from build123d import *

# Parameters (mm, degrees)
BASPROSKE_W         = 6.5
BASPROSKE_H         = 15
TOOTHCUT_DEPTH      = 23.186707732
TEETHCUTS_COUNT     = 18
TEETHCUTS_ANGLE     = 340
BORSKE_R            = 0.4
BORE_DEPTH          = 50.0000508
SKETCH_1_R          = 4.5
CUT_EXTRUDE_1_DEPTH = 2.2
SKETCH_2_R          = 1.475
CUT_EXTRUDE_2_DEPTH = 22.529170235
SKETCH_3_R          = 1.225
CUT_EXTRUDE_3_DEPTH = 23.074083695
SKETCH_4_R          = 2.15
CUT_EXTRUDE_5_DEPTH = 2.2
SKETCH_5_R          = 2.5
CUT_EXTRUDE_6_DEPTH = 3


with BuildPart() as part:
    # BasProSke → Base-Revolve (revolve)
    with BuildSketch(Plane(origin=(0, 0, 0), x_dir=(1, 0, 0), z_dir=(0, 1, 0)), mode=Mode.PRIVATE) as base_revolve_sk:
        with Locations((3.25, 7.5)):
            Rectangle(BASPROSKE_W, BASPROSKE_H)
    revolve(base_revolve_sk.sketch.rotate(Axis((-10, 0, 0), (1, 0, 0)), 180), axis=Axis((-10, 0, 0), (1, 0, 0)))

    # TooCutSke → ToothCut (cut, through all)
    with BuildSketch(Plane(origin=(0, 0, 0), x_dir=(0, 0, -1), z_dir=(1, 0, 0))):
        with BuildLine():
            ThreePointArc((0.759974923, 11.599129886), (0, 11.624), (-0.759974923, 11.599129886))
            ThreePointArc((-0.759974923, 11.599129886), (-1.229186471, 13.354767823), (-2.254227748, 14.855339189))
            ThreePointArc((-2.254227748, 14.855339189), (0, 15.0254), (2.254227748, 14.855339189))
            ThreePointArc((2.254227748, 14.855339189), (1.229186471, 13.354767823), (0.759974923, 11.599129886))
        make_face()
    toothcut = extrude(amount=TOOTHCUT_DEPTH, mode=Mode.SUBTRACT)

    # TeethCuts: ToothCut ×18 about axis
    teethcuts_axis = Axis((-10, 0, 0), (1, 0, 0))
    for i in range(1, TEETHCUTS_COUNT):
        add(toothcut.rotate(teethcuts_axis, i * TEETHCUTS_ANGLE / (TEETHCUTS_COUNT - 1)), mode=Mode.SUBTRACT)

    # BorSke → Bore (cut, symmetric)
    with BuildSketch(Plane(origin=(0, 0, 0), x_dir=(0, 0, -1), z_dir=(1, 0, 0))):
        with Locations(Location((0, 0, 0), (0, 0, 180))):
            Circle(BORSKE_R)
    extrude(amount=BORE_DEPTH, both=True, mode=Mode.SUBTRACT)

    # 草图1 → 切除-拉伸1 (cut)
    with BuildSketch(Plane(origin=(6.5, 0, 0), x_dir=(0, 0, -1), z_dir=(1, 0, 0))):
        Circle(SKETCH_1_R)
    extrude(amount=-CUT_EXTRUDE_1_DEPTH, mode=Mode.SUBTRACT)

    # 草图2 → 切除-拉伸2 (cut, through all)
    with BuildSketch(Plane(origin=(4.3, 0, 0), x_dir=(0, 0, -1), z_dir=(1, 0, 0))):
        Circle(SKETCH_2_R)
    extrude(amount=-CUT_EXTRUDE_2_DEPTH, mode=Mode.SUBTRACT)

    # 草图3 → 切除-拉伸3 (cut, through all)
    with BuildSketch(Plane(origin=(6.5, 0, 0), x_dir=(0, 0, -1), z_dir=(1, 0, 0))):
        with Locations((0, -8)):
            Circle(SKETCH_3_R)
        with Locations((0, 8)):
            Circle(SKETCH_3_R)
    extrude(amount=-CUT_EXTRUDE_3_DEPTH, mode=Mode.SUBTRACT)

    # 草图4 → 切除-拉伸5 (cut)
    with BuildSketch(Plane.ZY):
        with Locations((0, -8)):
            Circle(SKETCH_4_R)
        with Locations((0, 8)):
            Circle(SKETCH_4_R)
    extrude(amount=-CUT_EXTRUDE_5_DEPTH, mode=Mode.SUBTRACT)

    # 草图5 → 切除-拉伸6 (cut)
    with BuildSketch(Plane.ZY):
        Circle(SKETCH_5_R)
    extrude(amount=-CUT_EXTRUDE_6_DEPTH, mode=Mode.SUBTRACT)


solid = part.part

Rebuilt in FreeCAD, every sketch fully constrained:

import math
import FreeCAD as App
import Part
import Sketcher
from FreeCAD import Vector
Q = App.Units.Quantity

doc = App.newDocument("Part")
params = doc.addObject("Spreadsheet::Sheet", "Params")
for row, (alias, value) in enumerate([
    ("sketch1_height", "15 mm"),
    ("sketch1_width", "6.5 mm"),
    ("revolution_angle", "360 deg"),
    ("sketch2_radius", "5.4 mm"),
    ("sketch3_diameter", "0.8 mm"),
    ("pocket2_length", "100.000102 mm"),
    ("sketch4_diameter", "9 mm"),
    ("pocket3_length", "2.2 mm"),
    ("sketch5_diameter", "2.95 mm"),
    ("sketch6_diameter", "2.45 mm"),
    ("sketch7_diameter", "4.3 mm"),
    ("pocket6_length", "2.2 mm"),
    ("sketch8_diameter", "5 mm"),
    ("pocket7_length", "3 mm"),
], start=1):
    params.set(f"A{row}", alias)
    params.set(f"B{row}", "=" + value)
    params.setAlias(f"B{row}", alias)

body = doc.addObject("PartDesign::Body", "Body")

sketch1 = doc.addObject("Sketcher::SketchObject", "Sketch")
body.addObject(sketch1)
sketch1.AttachmentSupport = (doc.XZ_Plane, [""])
sketch1.MapMode = "FlatFace"
sketch1.addGeometry([
    Part.LineSegment(Vector(0, -15, 0), Vector(0, 0, 0)),
    Part.LineSegment(Vector(0, 0, 0), Vector(6.5, 0, 0)),
    Part.LineSegment(Vector(6.5, 0, 0), Vector(6.5, -15, 0)),
    Part.LineSegment(Vector(6.5, -15, 0), Vector(0, -15, 0)),
], False)
sketch1.addConstraint([
    Sketcher.Constraint("Coincident", 0, 2, 1, 1),
    Sketcher.Constraint("Coincident", 1, 2, 2, 1),
    Sketcher.Constraint("Coincident", 2, 2, 3, 1),
    Sketcher.Constraint("Coincident", 3, 2, 0, 1),
    Sketcher.Constraint("Vertical", 0),
    Sketcher.Constraint("Horizontal", 1),
    Sketcher.Constraint("Vertical", 2),
    Sketcher.Constraint("Horizontal", 3),
    Sketcher.Constraint("Coincident", 0, 2, -1, 1),
    Sketcher.Constraint("DistanceY", 0, 1, 0, 2, Q("15 mm")),
    Sketcher.Constraint("DistanceX", 1, 1, 1, 2, Q("6.5 mm")),
])
sketch1.setExpression("Constraints[9]", "Params.sketch1_height")
sketch1.setExpression("Constraints[10]", "Params.sketch1_width")
revolution = doc.addObject("PartDesign::Revolution", "Revolution")
body.addObject(revolution)
revolution.Profile = sketch1
revolution.ReferenceAxis = (sketch1, ["H_Axis"])
revolution.setExpression("Angle", "Params.revolution_angle")

sketch2 = doc.addObject("Sketcher::SketchObject", "Sketch001")
body.addObject(sketch2)
sketch2.AttachmentSupport = (doc.YZ_Plane, [""])
sketch2.MapMode = "FlatFace"
sketch2.addGeometry([
    Part.ArcOfCircle(Part.Circle(Vector(0, 0, 0), Vector(0, 0, 1), 11.624), math.radians(-3.748661), math.radians(3.748661)),
    Part.ArcOfCircle(Part.Circle(Vector(11.102561, -6.137095, 0), Vector(0, 0, 1), 5.4), math.radians(45.976059), math.radians(84.723789)),
    Part.ArcOfCircle(Part.Circle(Vector(0, 0, 0), Vector(0, 0, 1), 15.0254), math.radians(-8.628538), math.radians(8.628538)),
    Part.ArcOfCircle(Part.Circle(Vector(11.102561, 6.137095, 0), Vector(0, 0, 1), 5.4), math.radians(-84.723789), math.radians(-45.976059)),
], False)
sketch2.addConstraint([
    Sketcher.Constraint("Coincident", 0, 1, 1, 2),
    Sketcher.Constraint("Coincident", 1, 1, 2, 1),
    Sketcher.Constraint("Coincident", 2, 2, 3, 2),
    Sketcher.Constraint("Coincident", 3, 1, 0, 2),
    Sketcher.Constraint("Coincident", 0, 3, -1, 1),
    Sketcher.Constraint("Coincident", 2, 3, -1, 1),
    Sketcher.Constraint("Equal", 1, 3),
    Sketcher.Constraint("Symmetric", 1, 3, 3, 3, -1),
    Sketcher.Constraint("Radius", 1, Q("5.4 mm")),
    Sketcher.Constraint("Radius", 0, Q("11.624 mm")),
    Sketcher.Constraint("Radius", 2, Q("15.0254 mm")),
    Sketcher.Constraint("DistanceX", -1, 1, 1, 3, Q("11.102561 mm")),
    Sketcher.Constraint("DistanceX", -1, 1, 0, 1, Q("11.59913 mm")),
])
sketch2.setExpression("Constraints[8]", "Params.sketch2_radius")
pocket1 = doc.addObject("PartDesign::Pocket", "Pocket")
body.addObject(pocket1)
pocket1.Profile = sketch2
pocket1.Type = "ThroughAll"
pocket1.Reversed = True
doc.recompute()

polarpattern = doc.addObject("PartDesign::PolarPattern", "PolarPattern")
body.addObject(polarpattern)
polarpattern.Originals = [pocket1]
polarpattern.Axis = (doc.X_Axis, [""])
polarpattern.Angle = 360
polarpattern.Occurrences = 18
body.Tip = polarpattern

sketch3 = doc.addObject("Sketcher::SketchObject", "Sketch002")
body.addObject(sketch3)
sketch3.AttachmentSupport = (doc.YZ_Plane, [""])
sketch3.MapMode = "FlatFace"
sketch3.addGeometry(Part.Circle(Vector(0, 0, 0), Vector(0, 0, 1), 0.4), False)
sketch3.addConstraint([
    Sketcher.Constraint("Coincident", 0, 3, -1, 1),
    Sketcher.Constraint("Diameter", 0, Q("0.8 mm")),
])
sketch3.setExpression("Constraints[1]", "Params.sketch3_diameter")
pocket2 = doc.addObject("PartDesign::Pocket", "Pocket001")
body.addObject(pocket2)
pocket2.Profile = sketch3
pocket2.setExpression("Length", "Params.pocket2_length")
pocket2.Midplane = True

sketch4 = doc.addObject("Sketcher::SketchObject", "Sketch003")
body.addObject(sketch4)
sketch4.AttachmentSupport = (doc.YZ_Plane, [""])
sketch4.MapMode = "FlatFace"
sketch4.AttachmentOffset = App.Placement(Vector(0, 0, 6.5), App.Rotation())
sketch4.addGeometry(Part.Circle(Vector(0, 0, 0), Vector(0, 0, 1), 4.5), False)
sketch4.addConstraint([
    Sketcher.Constraint("Coincident", 0, 3, -1, 1),
    Sketcher.Constraint("Diameter", 0, Q("9 mm")),
])
sketch4.setExpression("Constraints[1]", "Params.sketch4_diameter")
pocket3 = doc.addObject("PartDesign::Pocket", "Pocket002")
body.addObject(pocket3)
pocket3.Profile = sketch4
pocket3.setExpression("Length", "Params.pocket3_length")

sketch5 = doc.addObject("Sketcher::SketchObject", "Sketch004")
body.addObject(sketch5)
sketch5.AttachmentSupport = (doc.YZ_Plane, [""])
sketch5.MapMode = "FlatFace"
sketch5.AttachmentOffset = App.Placement(Vector(0, 0, 4.3), App.Rotation())
sketch5.addGeometry(Part.Circle(Vector(0, 0, 0), Vector(0, 0, 1), 1.475), False)
sketch5.addConstraint([
    Sketcher.Constraint("Coincident", 0, 3, -1, 1),
    Sketcher.Constraint("Diameter", 0, Q("2.95 mm")),
])
sketch5.setExpression("Constraints[1]", "Params.sketch5_diameter")
pocket4 = doc.addObject("PartDesign::Pocket", "Pocket003")
body.addObject(pocket4)
pocket4.Profile = sketch5
pocket4.Type = "ThroughAll"

sketch6 = doc.addObject("Sketcher::SketchObject", "Sketch005")
body.addObject(sketch6)
sketch6.AttachmentSupport = (doc.YZ_Plane, [""])
sketch6.MapMode = "FlatFace"
sketch6.AttachmentOffset = App.Placement(Vector(0, 0, 6.5), App.Rotation())
sketch6.addGeometry([
    Part.Circle(Vector(-8, 0, 0), Vector(0, 0, 1), 1.225),
    Part.Circle(Vector(8, 0, 0), Vector(0, 0, 1), 1.225),
], False)
sketch6.addConstraint([
    Sketcher.Constraint("Equal", 0, 1),
    Sketcher.Constraint("Symmetric", 0, 3, 1, 3, -1, 1),
    Sketcher.Constraint("PointOnObject", 0, 3, -1),
    Sketcher.Constraint("Diameter", 0, Q("2.45 mm")),
    Sketcher.Constraint("DistanceX", 0, 3, -1, 1, Q("8 mm")),
])
sketch6.setExpression("Constraints[3]", "Params.sketch6_diameter")
pocket5 = doc.addObject("PartDesign::Pocket", "Pocket004")
body.addObject(pocket5)
pocket5.Profile = sketch6
pocket5.Type = "ThroughAll"

sketch7 = doc.addObject("Sketcher::SketchObject", "Sketch006")
body.addObject(sketch7)
sketch7.AttachmentSupport = (doc.YZ_Plane, [""])
sketch7.MapMode = "FlatFace"
sketch7.addGeometry([
    Part.Circle(Vector(-8, 0, 0), Vector(0, 0, 1), 2.15),
    Part.Circle(Vector(8, 0, 0), Vector(0, 0, 1), 2.15),
], False)
sketch7.addConstraint([
    Sketcher.Constraint("Equal", 0, 1),
    Sketcher.Constraint("Symmetric", 0, 3, 1, 3, -1, 1),
    Sketcher.Constraint("PointOnObject", 0, 3, -1),
    Sketcher.Constraint("Diameter", 0, Q("4.3 mm")),
    Sketcher.Constraint("DistanceX", 0, 3, -1, 1, Q("8 mm")),
])
sketch7.setExpression("Constraints[3]", "Params.sketch7_diameter")
pocket6 = doc.addObject("PartDesign::Pocket", "Pocket005")
body.addObject(pocket6)
pocket6.Profile = sketch7
pocket6.setExpression("Length", "Params.pocket6_length")
pocket6.Reversed = True

sketch8 = doc.addObject("Sketcher::SketchObject", "Sketch007")
body.addObject(sketch8)
sketch8.AttachmentSupport = (doc.YZ_Plane, [""])
sketch8.MapMode = "FlatFace"
sketch8.addGeometry(Part.Circle(Vector(0, 0, 0), Vector(0, 0, 1), 2.5), False)
sketch8.addConstraint([
    Sketcher.Constraint("Coincident", 0, 3, -1, 1),
    Sketcher.Constraint("Diameter", 0, Q("5 mm")),
])
sketch8.setExpression("Constraints[1]", "Params.sketch8_diameter")
pocket7 = doc.addObject("PartDesign::Pocket", "Pocket006")
body.addObject(pocket7)
pocket7.Profile = sketch8
pocket7.setExpression("Length", "Params.pocket7_length")
pocket7.Reversed = True

doc.recompute()
